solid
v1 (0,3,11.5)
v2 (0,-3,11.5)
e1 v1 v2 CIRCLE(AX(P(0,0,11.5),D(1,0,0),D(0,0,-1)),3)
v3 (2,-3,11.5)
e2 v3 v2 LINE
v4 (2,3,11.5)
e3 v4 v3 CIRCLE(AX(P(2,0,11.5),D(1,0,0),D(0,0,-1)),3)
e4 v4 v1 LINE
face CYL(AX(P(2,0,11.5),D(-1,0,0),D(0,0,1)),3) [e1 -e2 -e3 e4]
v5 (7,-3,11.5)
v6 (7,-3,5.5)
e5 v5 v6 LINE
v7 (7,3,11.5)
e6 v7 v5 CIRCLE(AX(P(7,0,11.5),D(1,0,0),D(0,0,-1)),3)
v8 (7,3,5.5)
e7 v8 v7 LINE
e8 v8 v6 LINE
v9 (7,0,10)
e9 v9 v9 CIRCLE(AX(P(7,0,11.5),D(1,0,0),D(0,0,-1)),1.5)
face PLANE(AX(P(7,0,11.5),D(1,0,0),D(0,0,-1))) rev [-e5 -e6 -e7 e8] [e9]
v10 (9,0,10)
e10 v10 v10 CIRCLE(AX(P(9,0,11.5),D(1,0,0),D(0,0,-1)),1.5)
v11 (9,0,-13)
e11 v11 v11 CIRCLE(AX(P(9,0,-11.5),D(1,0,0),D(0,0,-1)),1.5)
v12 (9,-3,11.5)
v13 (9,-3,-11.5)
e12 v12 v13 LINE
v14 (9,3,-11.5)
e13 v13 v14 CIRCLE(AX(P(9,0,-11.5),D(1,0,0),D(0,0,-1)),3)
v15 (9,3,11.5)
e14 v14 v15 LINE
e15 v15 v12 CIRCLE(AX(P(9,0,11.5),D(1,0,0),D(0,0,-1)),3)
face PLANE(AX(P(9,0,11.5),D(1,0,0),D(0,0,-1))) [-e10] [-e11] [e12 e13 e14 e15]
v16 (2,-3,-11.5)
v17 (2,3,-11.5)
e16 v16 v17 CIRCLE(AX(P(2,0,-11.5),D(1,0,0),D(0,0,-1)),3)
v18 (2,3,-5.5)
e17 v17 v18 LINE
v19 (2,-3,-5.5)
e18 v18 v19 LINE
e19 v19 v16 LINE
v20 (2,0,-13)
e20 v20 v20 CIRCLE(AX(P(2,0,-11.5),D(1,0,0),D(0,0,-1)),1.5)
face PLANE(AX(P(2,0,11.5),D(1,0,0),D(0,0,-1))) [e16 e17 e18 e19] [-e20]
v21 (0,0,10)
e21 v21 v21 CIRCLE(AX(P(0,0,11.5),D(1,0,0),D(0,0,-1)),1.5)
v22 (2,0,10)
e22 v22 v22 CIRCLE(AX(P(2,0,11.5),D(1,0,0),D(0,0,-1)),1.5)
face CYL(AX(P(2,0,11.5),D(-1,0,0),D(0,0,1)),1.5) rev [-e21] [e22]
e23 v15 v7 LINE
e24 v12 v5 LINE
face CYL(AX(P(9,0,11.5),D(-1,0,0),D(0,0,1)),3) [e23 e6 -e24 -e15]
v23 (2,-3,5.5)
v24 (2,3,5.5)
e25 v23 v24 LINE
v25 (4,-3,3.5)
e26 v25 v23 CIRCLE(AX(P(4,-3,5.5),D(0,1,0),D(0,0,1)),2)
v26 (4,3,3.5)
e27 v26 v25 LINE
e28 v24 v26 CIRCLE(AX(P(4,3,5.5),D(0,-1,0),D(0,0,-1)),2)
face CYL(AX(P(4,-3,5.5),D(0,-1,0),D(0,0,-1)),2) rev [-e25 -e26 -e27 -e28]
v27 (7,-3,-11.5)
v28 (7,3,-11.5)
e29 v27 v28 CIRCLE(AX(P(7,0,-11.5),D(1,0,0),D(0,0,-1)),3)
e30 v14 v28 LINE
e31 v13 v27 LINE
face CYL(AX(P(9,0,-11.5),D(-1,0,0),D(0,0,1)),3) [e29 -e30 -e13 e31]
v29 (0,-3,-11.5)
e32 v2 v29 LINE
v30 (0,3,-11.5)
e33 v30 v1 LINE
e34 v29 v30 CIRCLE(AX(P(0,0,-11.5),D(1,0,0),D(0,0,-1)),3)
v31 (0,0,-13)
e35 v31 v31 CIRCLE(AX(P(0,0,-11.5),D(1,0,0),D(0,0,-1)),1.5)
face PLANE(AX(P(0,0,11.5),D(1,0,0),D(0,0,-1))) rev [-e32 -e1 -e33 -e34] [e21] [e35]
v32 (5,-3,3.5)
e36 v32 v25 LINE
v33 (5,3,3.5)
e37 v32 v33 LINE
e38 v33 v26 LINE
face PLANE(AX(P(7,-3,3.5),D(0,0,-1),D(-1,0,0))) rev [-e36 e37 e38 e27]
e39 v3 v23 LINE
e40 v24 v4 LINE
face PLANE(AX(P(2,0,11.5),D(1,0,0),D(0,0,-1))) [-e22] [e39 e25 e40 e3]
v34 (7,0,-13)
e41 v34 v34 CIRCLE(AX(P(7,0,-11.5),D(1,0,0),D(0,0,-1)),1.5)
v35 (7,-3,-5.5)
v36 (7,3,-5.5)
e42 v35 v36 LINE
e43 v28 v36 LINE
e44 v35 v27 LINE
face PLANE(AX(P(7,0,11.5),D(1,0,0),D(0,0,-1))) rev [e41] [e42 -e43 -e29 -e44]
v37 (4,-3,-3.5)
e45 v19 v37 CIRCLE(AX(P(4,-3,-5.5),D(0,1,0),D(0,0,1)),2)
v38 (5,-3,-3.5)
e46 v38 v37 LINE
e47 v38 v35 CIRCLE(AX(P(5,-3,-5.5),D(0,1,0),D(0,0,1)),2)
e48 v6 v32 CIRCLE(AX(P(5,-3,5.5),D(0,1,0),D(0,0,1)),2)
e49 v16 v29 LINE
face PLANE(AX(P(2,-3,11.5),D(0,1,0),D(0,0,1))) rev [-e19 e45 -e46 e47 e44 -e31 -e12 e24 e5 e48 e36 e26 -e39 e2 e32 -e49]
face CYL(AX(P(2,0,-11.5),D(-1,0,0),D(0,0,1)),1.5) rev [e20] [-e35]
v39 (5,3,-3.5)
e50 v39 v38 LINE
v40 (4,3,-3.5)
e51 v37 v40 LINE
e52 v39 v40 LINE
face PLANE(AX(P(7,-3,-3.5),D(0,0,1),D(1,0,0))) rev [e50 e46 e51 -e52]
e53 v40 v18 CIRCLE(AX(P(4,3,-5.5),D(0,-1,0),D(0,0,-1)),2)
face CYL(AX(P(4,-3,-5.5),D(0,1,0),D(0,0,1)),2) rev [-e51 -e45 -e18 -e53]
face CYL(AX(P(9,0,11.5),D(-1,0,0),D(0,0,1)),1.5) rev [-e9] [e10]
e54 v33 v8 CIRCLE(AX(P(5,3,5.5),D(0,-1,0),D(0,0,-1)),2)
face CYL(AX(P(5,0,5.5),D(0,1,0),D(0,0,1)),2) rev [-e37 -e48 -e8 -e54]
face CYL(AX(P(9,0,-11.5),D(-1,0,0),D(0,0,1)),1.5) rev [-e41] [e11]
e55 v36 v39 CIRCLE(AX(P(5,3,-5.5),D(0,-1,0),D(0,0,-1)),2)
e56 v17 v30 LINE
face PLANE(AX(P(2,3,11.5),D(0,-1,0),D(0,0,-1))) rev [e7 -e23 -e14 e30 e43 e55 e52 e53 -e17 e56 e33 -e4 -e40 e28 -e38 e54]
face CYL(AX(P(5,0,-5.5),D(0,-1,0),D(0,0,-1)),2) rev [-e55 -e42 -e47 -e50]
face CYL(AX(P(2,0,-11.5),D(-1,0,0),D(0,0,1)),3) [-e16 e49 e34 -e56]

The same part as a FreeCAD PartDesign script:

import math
import FreeCAD as App
import Part
import Sketcher
Q = App.Units.Quantity


def edges_at(feature, points):
    """Names of the edges that pass closest to the given points."""
    edges = feature.Shape.Edges
    near = lambda p: min(range(len(edges)), key=lambda i: edges[i].distToShape(Part.Vertex(*p))[0])
    return sorted({f"Edge{near(p) + 1}" for p in points})

doc = App.newDocument("Part")
body = doc.addObject("PartDesign::Body", "Body")

# Sketch on YZ plane
sketch1 = doc.addObject("Sketcher::SketchObject", "Sketch")
body.addObject(sketch1)
sketch1.AttachmentSupport = (doc.YZ_Plane, [""])
sketch1.MapMode = "FlatFace"
sketch1.addGeometry([
    Part.LineSegment(App.Vector(3, -11.5, 0), App.Vector(3, 11.5, 0)),  # 0
    Part.ArcOfCircle(Part.Circle(App.Vector(0, 11.5, 0), App.Vector(0, 0, 1), 3), math.radians(0), math.radians(180)),  # 1
    Part.LineSegment(App.Vector(-3, 11.5, 0), App.Vector(-3, -11.5, 0)),  # 2
    Part.ArcOfCircle(Part.Circle(App.Vector(0, -11.5, 0), App.Vector(0, 0, 1), 3), math.radians(180), math.radians(360)),  # 3
    Part.Circle(App.Vector(0, -11.5, 0), App.Vector(0, 0, 1), 1.5),  # 4
    Part.Circle(App.Vector(0, 11.5, 0), App.Vector(0, 0, 1), 1.5),  # 5
], False)
sketch1.addConstraint([
    Sketcher.Constraint("Tangent", 0, 2, 1, 1),
    Sketcher.Constraint("Tangent", 1, 2, 2, 1),
    Sketcher.Constraint("Tangent", 2, 2, 3, 1),
    Sketcher.Constraint("Tangent", 3, 2, 0, 1),
    Sketcher.Constraint("Vertical", 0),
    Sketcher.Constraint("Vertical", 2),
    Sketcher.Constraint("Coincident", 4, 3, 3, 3),
    Sketcher.Constraint("Coincident", 5, 3, 1, 3),
    Sketcher.Constraint("Equal", 4, 5),
    Sketcher.Constraint("Symmetric", 1, 3, 3, 3, -1, 1),
    Sketcher.Constraint("Diameter", 4, Q("3 mm")),
    Sketcher.Constraint("Radius", 1, Q("3 mm")),
    Sketcher.Constraint("DistanceY", 0, 1, 0, 2, Q("23 mm")),
])
pad1 = doc.addObject("PartDesign::Pad", "Pad")
body.addObject(pad1)
pad1.Profile = sketch1
pad1.Length = 2

# Sketch on YZ plane
sketch2 = doc.addObject("Sketcher::SketchObject", "Sketch001")
body.addObject(sketch2)
sketch2.AttachmentSupport = (doc.YZ_Plane, [""])
sketch2.MapMode = "FlatFace"
sketch2.AttachmentOffset = App.Placement(App.Vector(0, 0, 2), App.Rotation())
sketch2.addGeometry([
    Part.LineSegment(App.Vector(3, 3.5, 0), App.Vector(-3, 3.5, 0)),
    Part.LineSegment(App.Vector(-3, 3.5, 0), App.Vector(-3, -3.5, 0)),
    Part.LineSegment(App.Vector(-3, -3.5, 0), App.Vector(3, -3.5, 0)),
    Part.LineSegment(App.Vector(3, -3.5, 0), App.Vector(3, 3.5, 0)),
], False)
sketch2.addConstraint([
    Sketcher.Constraint("Coincident", 0, 2, 1, 1),
    Sketcher.Constraint("Coincident", 1, 2, 2, 1),
    Sketcher.Constraint("Coincident", 2, 2, 3, 1),
    Sketcher.Constraint("Coincident", 3, 2, 0, 1),
    Sketcher.Constraint("Horizontal", 0),
    Sketcher.Constraint("Vertical", 1),
    Sketcher.Constraint("Horizontal", 2),
    Sketcher.Constraint("Vertical", 3),
    Sketcher.Constraint("Symmetric", 0, 2, 2, 2, -1, 1),
    Sketcher.Constraint("DistanceX", 0, 2, 0, 1, Q("6 mm")),
    Sketcher.Constraint("DistanceY", 1, 2, 1, 1, Q("7 mm")),
])
pad2 = doc.addObject("PartDesign::Pad", "Pad001")
body.addObject(pad2)
pad2.Profile = sketch2
pad2.Length = 5

# Sketch on YZ plane
sketch3 = doc.addObject("Sketcher::SketchObject", "Sketch002")
body.addObject(sketch3)
sketch3.AttachmentSupport = (doc.YZ_Plane, [""])
sketch3.MapMode = "FlatFace"
sketch3.AttachmentOffset = App.Placement(App.Vector(0, 0, 7), App.Rotation())
sketch3.addGeometry([
    Part.LineSegment(App.Vector(3, -11.5, 0), App.Vector(3, 11.5, 0)),  # 0
    Part.ArcOfCircle(Part.Circle(App.Vector(0, 11.5, 0), App.Vector(0, 0, 1), 3), math.radians(0), math.radians(180)),  # 1
    Part.LineSegment(App.Vector(-3, 11.5, 0), App.Vector(-3, -11.5, 0)),  # 2
    Part.ArcOfCircle(Part.Circle(App.Vector(0, -11.5, 0), App.Vector(0, 0, 1), 3), math.radians(180), math.radians(360)),  # 3
    Part.Circle(App.Vector(0, 11.5, 0), App.Vector(0, 0, 1), 1.5),  # 4
    Part.Circle(App.Vector(0, -11.5, 0), App.Vector(0, 0, 1), 1.5),  # 5
], False)
sketch3.addConstraint([
    Sketcher.Constraint("Tangent", 0, 2, 1, 1),
    Sketcher.Constraint("Tangent", 1, 2, 2, 1),
    Sketcher.Constraint("Tangent", 2, 2, 3, 1),
    Sketcher.Constraint("Tangent", 3, 2, 0, 1),
    Sketcher.Constraint("Vertical", 0),
    Sketcher.Constraint("Vertical", 2),
    Sketcher.Constraint("Coincident", 4, 3, 1, 3),
    Sketcher.Constraint("Coincident", 5, 3, 3, 3),
    Sketcher.Constraint("Equal", 4, 5),
    Sketcher.Constraint("Symmetric", 1, 3, 3, 3, -1, 1),
    Sketcher.Constraint("Diameter", 4, Q("3 mm")),
    Sketcher.Constraint("Radius", 1, Q("3 mm")),
    Sketcher.Constraint("DistanceY", 0, 1, 0, 2, Q("23 mm")),
])
pad3 = doc.addObject("PartDesign::Pad", "Pad002")
body.addObject(pad3)
pad3.Profile = sketch3
pad3.Length = 2
doc.recompute()

fillet = doc.addObject("PartDesign::Fillet", "Fillet")
body.addObject(fillet)
fillet.Base = (pad3, edges_at(pad3, [
    (2, 0, -3.5),
    (2, 0, 3.5),
    (7, 0, -3.5),
    (7, 0, 3.5),
]))
fillet.Radius = 2

doc.recompute()
